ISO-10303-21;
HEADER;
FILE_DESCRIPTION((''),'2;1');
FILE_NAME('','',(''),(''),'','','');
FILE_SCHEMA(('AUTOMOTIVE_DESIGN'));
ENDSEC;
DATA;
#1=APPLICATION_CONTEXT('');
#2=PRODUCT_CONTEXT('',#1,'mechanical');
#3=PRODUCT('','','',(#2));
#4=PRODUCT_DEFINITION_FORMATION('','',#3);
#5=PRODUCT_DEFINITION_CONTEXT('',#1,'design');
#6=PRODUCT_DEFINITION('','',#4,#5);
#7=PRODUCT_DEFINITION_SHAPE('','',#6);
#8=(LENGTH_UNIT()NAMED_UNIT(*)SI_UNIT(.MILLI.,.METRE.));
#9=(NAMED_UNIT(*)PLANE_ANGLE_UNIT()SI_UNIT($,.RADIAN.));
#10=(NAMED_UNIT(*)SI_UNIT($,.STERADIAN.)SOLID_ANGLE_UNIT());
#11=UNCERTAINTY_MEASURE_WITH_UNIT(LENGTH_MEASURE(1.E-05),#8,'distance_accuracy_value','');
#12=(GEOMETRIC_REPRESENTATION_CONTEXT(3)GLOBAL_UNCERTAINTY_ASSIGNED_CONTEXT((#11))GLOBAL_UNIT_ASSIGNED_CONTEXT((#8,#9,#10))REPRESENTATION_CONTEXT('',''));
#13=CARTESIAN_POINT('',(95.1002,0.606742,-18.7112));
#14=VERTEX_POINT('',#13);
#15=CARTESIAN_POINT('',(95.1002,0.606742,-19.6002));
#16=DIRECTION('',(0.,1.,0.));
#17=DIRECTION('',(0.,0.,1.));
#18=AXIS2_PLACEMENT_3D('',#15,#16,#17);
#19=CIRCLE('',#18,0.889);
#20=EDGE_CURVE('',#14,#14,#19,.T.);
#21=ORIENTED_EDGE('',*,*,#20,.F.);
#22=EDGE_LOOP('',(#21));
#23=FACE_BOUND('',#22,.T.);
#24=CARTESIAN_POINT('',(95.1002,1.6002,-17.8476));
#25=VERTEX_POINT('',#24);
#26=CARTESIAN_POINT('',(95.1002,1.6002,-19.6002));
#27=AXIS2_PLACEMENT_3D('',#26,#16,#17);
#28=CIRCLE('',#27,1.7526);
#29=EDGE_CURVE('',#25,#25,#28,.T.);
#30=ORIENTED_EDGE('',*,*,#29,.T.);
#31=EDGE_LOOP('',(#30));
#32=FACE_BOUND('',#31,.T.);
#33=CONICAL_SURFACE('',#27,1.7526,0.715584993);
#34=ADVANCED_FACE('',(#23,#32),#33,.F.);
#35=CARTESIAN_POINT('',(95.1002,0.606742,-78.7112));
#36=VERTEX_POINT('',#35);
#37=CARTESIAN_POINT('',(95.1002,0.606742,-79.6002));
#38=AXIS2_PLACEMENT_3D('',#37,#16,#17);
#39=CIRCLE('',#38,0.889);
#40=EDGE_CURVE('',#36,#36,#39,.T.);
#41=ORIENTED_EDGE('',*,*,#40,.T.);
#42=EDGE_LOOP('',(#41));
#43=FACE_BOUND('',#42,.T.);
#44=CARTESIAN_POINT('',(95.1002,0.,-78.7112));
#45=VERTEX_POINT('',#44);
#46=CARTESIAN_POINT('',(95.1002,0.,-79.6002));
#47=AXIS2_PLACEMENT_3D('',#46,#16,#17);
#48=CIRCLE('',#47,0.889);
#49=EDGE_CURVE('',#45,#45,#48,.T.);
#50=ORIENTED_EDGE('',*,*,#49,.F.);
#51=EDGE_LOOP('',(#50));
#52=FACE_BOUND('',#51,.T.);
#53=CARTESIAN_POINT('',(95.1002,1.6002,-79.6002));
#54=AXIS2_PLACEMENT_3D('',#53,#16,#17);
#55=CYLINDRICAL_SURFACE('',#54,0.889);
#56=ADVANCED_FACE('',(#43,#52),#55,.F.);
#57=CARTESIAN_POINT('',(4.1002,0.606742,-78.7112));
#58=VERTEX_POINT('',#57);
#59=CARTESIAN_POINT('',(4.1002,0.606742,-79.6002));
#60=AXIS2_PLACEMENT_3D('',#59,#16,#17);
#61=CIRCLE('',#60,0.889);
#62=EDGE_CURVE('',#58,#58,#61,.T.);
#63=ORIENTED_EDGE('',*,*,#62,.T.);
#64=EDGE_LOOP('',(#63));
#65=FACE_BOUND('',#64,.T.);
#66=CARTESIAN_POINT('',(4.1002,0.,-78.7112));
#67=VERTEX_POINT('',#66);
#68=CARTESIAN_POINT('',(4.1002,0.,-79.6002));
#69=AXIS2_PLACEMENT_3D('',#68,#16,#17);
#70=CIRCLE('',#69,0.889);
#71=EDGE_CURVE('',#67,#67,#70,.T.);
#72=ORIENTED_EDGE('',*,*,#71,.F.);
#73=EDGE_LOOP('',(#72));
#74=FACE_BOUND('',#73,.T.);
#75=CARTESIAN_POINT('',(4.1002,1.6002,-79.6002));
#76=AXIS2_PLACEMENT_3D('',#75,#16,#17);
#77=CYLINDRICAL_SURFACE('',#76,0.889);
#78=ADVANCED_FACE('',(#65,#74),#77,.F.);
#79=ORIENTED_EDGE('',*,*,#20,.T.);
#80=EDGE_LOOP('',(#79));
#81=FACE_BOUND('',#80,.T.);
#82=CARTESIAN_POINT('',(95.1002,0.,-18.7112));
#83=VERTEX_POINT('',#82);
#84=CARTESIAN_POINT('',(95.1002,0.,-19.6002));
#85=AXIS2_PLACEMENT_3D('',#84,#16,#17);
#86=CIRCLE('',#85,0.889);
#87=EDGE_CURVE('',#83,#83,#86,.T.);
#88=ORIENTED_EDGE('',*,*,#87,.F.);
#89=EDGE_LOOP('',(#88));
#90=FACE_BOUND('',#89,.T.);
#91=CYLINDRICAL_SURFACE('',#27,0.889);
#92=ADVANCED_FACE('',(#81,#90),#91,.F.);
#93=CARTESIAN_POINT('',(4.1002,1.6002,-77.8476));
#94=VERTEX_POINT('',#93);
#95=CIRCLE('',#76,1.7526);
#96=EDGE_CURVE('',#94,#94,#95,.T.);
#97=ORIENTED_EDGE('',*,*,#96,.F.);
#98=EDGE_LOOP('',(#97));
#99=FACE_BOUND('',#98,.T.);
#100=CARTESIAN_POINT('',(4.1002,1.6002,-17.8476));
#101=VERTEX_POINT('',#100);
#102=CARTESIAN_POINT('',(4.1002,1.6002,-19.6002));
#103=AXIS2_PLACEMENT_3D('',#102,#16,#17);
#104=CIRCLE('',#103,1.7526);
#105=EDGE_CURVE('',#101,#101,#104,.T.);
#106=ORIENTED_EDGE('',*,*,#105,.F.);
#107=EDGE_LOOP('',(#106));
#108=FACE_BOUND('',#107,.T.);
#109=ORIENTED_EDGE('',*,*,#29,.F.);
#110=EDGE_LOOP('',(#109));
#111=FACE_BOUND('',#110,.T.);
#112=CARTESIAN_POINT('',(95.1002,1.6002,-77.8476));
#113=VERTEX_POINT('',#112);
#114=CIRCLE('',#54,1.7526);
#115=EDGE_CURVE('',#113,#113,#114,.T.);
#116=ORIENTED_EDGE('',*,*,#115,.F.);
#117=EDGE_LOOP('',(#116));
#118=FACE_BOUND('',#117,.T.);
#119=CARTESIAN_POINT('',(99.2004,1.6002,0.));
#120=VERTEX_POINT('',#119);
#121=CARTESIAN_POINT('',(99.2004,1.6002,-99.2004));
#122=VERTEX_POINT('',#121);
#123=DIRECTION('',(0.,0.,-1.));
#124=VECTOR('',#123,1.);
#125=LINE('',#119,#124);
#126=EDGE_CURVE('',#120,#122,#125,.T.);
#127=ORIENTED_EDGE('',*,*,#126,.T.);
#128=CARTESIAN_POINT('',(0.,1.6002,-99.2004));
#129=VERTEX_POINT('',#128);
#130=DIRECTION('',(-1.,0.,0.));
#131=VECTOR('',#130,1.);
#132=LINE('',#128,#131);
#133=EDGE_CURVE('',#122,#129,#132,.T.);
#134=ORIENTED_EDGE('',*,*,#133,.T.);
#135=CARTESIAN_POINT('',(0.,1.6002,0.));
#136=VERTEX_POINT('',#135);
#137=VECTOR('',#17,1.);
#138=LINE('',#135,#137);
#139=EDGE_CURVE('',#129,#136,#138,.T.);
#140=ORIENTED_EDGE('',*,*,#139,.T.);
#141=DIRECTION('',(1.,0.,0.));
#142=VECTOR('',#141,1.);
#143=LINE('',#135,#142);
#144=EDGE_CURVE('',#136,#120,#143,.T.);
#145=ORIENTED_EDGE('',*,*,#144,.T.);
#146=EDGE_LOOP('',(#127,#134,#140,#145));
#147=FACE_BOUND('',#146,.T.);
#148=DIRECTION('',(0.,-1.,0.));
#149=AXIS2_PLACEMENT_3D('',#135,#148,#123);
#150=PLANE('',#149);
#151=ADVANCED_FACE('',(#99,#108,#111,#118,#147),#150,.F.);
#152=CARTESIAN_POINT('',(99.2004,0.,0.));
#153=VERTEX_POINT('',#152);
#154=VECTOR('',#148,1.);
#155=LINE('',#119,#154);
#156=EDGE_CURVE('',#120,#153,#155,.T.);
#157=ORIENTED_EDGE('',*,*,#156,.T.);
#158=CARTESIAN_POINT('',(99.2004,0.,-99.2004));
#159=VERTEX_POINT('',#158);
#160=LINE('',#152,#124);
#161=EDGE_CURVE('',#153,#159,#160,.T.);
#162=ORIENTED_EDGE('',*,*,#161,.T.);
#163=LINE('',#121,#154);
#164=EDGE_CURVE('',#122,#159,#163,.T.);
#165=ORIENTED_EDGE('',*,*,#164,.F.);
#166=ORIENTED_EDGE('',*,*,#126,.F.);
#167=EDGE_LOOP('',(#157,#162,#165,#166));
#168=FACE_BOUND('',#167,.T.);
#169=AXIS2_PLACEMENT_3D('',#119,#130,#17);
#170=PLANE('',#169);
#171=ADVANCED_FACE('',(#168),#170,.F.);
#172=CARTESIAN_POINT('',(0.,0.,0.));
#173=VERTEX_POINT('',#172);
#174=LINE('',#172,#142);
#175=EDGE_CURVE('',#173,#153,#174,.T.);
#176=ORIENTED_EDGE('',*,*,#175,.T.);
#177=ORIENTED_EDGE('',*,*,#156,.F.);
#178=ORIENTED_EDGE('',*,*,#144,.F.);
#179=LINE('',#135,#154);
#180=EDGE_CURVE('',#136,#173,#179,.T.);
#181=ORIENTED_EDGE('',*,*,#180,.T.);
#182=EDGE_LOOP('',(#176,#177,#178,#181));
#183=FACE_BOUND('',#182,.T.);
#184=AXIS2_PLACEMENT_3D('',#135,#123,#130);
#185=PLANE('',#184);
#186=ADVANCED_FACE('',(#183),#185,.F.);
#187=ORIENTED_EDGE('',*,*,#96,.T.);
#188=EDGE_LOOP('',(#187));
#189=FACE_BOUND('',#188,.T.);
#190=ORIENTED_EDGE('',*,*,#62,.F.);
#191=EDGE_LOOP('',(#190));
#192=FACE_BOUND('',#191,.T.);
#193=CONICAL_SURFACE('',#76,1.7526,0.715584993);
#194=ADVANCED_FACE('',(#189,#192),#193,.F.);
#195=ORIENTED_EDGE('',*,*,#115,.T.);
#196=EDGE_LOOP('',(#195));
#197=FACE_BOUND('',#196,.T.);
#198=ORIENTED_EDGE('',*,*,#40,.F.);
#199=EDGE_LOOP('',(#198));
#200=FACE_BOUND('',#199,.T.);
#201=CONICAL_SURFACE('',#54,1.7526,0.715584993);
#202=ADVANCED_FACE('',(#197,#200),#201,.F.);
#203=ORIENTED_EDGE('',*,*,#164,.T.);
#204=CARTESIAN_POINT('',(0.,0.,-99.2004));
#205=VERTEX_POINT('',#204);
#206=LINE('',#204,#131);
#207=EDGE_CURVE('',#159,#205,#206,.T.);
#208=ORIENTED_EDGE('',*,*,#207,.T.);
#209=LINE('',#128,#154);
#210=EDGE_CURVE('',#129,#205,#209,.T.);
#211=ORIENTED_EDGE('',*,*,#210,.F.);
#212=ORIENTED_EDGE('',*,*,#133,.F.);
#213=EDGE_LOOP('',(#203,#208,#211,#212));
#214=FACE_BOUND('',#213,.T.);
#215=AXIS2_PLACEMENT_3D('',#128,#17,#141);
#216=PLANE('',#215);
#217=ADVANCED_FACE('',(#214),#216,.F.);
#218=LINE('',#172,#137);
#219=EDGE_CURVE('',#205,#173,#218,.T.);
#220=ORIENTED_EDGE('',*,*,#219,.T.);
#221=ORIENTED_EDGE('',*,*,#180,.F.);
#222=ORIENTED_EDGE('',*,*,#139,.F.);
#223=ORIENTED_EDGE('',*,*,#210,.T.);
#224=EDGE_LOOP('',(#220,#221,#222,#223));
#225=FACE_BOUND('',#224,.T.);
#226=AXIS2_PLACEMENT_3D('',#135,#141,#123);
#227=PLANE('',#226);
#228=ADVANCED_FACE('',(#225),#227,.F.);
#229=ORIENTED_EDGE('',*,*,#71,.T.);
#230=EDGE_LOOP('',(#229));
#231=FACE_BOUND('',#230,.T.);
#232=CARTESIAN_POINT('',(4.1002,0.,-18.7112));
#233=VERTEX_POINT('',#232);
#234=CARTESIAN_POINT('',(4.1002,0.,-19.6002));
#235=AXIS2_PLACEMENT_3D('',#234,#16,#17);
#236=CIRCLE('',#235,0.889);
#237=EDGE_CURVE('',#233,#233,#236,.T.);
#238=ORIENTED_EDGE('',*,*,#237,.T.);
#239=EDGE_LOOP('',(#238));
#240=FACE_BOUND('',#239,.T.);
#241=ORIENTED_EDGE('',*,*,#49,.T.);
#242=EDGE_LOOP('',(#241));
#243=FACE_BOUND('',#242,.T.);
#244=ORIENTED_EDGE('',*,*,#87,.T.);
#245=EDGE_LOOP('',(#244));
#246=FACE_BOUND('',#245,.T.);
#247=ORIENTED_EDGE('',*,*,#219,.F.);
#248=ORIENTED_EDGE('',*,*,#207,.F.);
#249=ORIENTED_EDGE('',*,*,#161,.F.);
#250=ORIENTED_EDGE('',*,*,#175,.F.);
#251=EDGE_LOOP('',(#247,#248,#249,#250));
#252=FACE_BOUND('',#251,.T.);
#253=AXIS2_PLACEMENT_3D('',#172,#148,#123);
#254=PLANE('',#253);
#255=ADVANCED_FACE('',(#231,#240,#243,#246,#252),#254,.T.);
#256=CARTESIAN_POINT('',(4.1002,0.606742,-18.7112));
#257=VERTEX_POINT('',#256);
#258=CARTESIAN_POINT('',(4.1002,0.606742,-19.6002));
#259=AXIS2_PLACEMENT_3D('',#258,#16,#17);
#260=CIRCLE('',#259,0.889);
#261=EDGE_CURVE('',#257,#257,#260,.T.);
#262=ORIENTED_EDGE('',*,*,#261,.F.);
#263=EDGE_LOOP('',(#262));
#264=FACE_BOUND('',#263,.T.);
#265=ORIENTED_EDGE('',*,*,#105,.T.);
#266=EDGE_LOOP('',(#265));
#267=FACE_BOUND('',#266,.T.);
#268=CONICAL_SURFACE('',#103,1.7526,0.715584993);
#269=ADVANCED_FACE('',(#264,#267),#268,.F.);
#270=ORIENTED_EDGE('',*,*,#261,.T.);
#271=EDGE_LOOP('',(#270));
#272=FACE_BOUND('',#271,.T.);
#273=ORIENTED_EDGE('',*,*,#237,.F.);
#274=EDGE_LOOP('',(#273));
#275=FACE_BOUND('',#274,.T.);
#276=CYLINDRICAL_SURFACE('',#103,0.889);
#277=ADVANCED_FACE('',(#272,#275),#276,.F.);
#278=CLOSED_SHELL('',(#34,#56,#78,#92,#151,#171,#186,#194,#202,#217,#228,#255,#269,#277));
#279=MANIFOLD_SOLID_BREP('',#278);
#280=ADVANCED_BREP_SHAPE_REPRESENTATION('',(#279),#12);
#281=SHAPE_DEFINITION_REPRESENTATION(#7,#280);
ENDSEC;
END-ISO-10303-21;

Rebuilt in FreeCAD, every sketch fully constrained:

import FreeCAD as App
import Part
import Sketcher
Q = App.Units.Quantity

doc = App.newDocument("Part")
body = doc.addObject("PartDesign::Body", "Body")

# Sketch on XZ plane
sketch1 = body.newObject("Sketcher::SketchObject", "Sketch")
sketch1.AttachmentSupport = (doc.getObject("XZ_Plane"), [""])
sketch1.MapMode = "FlatFace"
sketch1.addGeometry(Part.LineSegment(App.Vector(0, -99, 0), App.Vector(0, 0, 0)), False)
sketch1.addGeometry(Part.LineSegment(App.Vector(0, 0, 0), App.Vector(99, 0, 0)), False)
sketch1.addGeometry(Part.LineSegment(App.Vector(99, 0, 0), App.Vector(99, -99, 0)), False)
sketch1.addGeometry(Part.LineSegment(App.Vector(99, -99, 0), App.Vector(0, -99, 0)), False)
sketch1.addConstraint(Sketcher.Constraint("Coincident", 0, 2, 1, 1))
sketch1.addConstraint(Sketcher.Constraint("Coincident", 1, 2, 2, 1))
sketch1.addConstraint(Sketcher.Constraint("Coincident", 2, 2, 3, 1))
sketch1.addConstraint(Sketcher.Constraint("Coincident", 3, 2, 0, 1))
sketch1.addConstraint(Sketcher.Constraint("Vertical", 0))
sketch1.addConstraint(Sketcher.Constraint("Horizontal", 1))
sketch1.addConstraint(Sketcher.Constraint("Vertical", 2))
sketch1.addConstraint(Sketcher.Constraint("Horizontal", 3))
sketch1.addConstraint(Sketcher.Constraint("Coincident", 0, 2, -1, 1))
sketch1.addConstraint(Sketcher.Constraint("Equal", 3, 0))
sketch1.addConstraint(Sketcher.Constraint("DistanceX", 1, 1, 1, 2, 99.2004))
pad1 = body.newObject("PartDesign::Pad", "Pad")
pad1.Profile = sketch1
pad1.Length = Q("0.063 in")
pad1.Reversed = True

# Sketch on YZ plane
sketch2 = body.newObject("Sketcher::SketchObject", "Sketch001")
sketch2.AttachmentSupport = (doc.getObject("YZ_Plane"), [""])
sketch2.MapMode = "FlatFace"
sketch2.AttachmentOffset = App.Placement(App.Vector(0, 0, 4.1002), App.Rotation())
sketch2.addGeometry(Part.LineSegment(App.Vector(0, -79.6, 0), App.Vector(1.6, -79.6, 0)), False)
sketch2.addGeometry(Part.LineSegment(App.Vector(1.6, -79.6, 0), App.Vector(1.6, -77.8, 0)), False)
sketch2.addGeometry(Part.LineSegment(App.Vector(1.6, -77.8, 0), App.Vector(0.6, -78.7, 0)), False)
sketch2.addGeometry(Part.LineSegment(App.Vector(0.6, -78.7, 0), App.Vector(0, -78.7, 0)), False)
sketch2.addGeometry(Part.LineSegment(App.Vector(0, -78.7, 0), App.Vector(0, -79.6, 0)), False)
sketch2.addGeometry(Part.LineSegment(App.Vector(1.6, -79.6, 0), App.Vector(0, -79.6, 0)), True)  # axis
sketch2.addConstraint(Sketcher.Constraint("Coincident", 0, 2, 1, 1))
sketch2.addConstraint(Sketcher.Constraint("Coincident", 1, 2, 2, 1))
sketch2.addConstraint(Sketcher.Constraint("Coincident", 2, 2, 3, 1))
sketch2.addConstraint(Sketcher.Constraint("Coincident", 3, 2, 4, 1))
sketch2.addConstraint(Sketcher.Constraint("Coincident", 4, 2, 0, 1))
sketch2.addConstraint(Sketcher.Constraint("Horizontal", 0))
sketch2.addConstraint(Sketcher.Constraint("Vertical", 1))
sketch2.addConstraint(Sketcher.Constraint("Horizontal", 3))
sketch2.addConstraint(Sketcher.Constraint("Vertical", 4))
sketch2.addConstraint(Sketcher.Constraint("Horizontal", 5))
sketch2.addConstraint(Sketcher.Constraint("Coincident", 5, 1, 0, 2))
sketch2.addConstraint(Sketcher.Constraint("PointOnObject", 3, 2, -2))
sketch2.addConstraint(Sketcher.Constraint("PointOnObject", 5, 2, -2))
sketch2.addConstraint(Sketcher.Constraint("Angle", 2, Q("-139 deg")))
sketch2.addConstraint(Sketcher.Constraint("DistanceX", 0, 1, 0, 2, Q("0.063 in")))
sketch2.addConstraint(Sketcher.Constraint("DistanceY", 1, 1, 1, 2, Q("0.069 in")))
sketch2.addConstraint(Sketcher.Constraint("DistanceY", 4, 2, 4, 1, Q("0.035 in")))
sketch2.addConstraint(Sketcher.Constraint("DistanceY", 0, 2, -1, 1, 79.6002))
groove = body.newObject("PartDesign::Groove", "Groove")
groove.Profile = sketch2
groove.ReferenceAxis = (sketch2, ["Axis0"])
groove.Angle = 360
doc.recompute()

linearpattern = body.newObject("PartDesign::LinearPattern", "LinearPattern")
linearpattern.Originals = [groove]
linearpattern.Direction = (doc.getObject("Z_Axis"), [""])
linearpattern.Mode = "offset"
linearpattern.Offset = 60
linearpattern.Occurrences = 2
body.Tip = linearpattern
doc.recompute()

datumline = body.newObject("PartDesign::Line", "DatumLine")
datumline.Placement = App.Placement(App.Vector(0, 0, 0), App.Rotation(App.Vector(0, 0, 1), App.Vector(0.834862385, 0, 0.550458716)))
linearpattern2 = body.newObject("PartDesign::LinearPattern", "LinearPattern001")
linearpattern2.Originals = [groove]
linearpattern2.Direction = (datumline, [""])
linearpattern2.Mode = "offset"
linearpattern2.Offset = 109
linearpattern2.Occurrences = 2
body.Tip = linearpattern2
doc.recompute()

linearpattern3 = body.newObject("PartDesign::LinearPattern", "LinearPattern002")
linearpattern3.Originals = [groove]
linearpattern3.Direction = (doc.getObject("X_Axis"), [""])
linearpattern3.Mode = "offset"
linearpattern3.Offset = 91
linearpattern3.Occurrences = 2
body.Tip = linearpattern3

doc.recompute()
